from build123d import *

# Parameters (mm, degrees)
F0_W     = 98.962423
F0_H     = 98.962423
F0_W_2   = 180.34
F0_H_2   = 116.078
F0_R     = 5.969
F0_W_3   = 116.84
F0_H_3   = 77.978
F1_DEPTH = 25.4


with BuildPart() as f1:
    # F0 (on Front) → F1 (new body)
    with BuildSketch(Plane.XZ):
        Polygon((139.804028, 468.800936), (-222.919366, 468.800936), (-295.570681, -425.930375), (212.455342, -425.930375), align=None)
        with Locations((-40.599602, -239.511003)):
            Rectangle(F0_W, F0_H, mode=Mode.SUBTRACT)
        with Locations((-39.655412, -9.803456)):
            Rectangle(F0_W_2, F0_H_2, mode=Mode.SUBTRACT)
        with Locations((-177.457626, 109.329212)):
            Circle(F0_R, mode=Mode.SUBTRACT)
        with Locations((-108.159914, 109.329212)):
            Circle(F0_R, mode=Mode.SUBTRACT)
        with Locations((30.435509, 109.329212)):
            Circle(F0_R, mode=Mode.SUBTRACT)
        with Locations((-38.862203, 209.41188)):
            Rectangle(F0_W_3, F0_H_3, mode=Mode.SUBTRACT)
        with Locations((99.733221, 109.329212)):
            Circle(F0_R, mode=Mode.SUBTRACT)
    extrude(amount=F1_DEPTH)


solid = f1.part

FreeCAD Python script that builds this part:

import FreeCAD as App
import Part
import Sketcher
Q = App.Units.Quantity


def add_polygon(sketch, points):
    """Adds a closed chain of lines whose ends are joined by coincident constraints."""
    first, n = sketch.GeometryCount, len(points)
    for a, b in zip(points, points[1:] + points[:1]):
        sketch.addGeometry(Part.LineSegment(App.Vector(*a, 0), App.Vector(*b, 0)), False)
    for i in range(n):
        sketch.addConstraint(Sketcher.Constraint("Coincident", first + i, 2, first + (i + 1) % n, 1))

doc = App.newDocument("Part")
params = doc.addObject("Spreadsheet::Sheet", "Params")
for row, (alias, value) in enumerate([
    ("sketch1_diameter", "0.47 in"),
    ("sketch1_width", "7.1 in"),
    ("sketch1_width2", "4.6 in"),
    ("sketch1_height", "4.57 in"),
    ("sketch1_height2", "3.07 in"),
    ("pad1_length", "1 in"),
], start=1):
    params.set(f"A{row}", alias)
    params.set(f"B{row}", "=" + value)
    params.setAlias(f"B{row}", alias)

body = doc.addObject("PartDesign::Body", "Body")

sketch1 = body.newObject("Sketcher::SketchObject", "Sketch")
sketch1.AttachmentSupport = (doc.getObject("XZ_Plane"), [""])
sketch1.MapMode = "FlatFace"
add_polygon(sketch1, [(139.804028, 468.800936), (-222.919366, 468.800936), (-295.570681, -425.930375), (212.455342, -425.930375)])
add_polygon(sketch1, [(8.881609, -288.992214), (-90.080814, -288.992214), (-90.080814, -190.029791), (8.881609, -190.029791)])
sketch1.addGeometry(Part.Circle(App.Vector(-177.457626, 109.329212, 0), App.Vector(0, 0, 1), 5.969), False)
add_polygon(sketch1, [(50.514588, -67.842456), (-129.825412, -67.842456), (-129.825412, 48.235544), (50.514588, 48.235544)])
sketch1.addGeometry(Part.Circle(App.Vector(-108.159914, 109.329212, 0), App.Vector(0, 0, 1), 5.969), False)
add_polygon(sketch1, [(19.557797, 170.42288), (-97.282203, 170.42288), (-97.282203, 248.40088), (19.557797, 248.40088)])
sketch1.addGeometry(Part.Circle(App.Vector(30.435509, 109.329212, 0), App.Vector(0, 0, 1), 5.969), False)
sketch1.addGeometry(Part.Circle(App.Vector(99.733221, 109.329212, 0), App.Vector(0, 0, 1), 5.969), False)
sketch1.addConstraint(Sketcher.Constraint("Horizontal", 0))
sketch1.addConstraint(Sketcher.Constraint("Horizontal", 2))
sketch1.addConstraint(Sketcher.Constraint("Horizontal", 4))
sketch1.addConstraint(Sketcher.Constraint("Vertical", 5))
sketch1.addConstraint(Sketcher.Constraint("Horizontal", 6))
sketch1.addConstraint(Sketcher.Constraint("Vertical", 7))
sketch1.addConstraint(Sketcher.Constraint("Horizontal", 9))
sketch1.addConstraint(Sketcher.Constraint("Vertical", 10))
sketch1.addConstraint(Sketcher.Constraint("Horizontal", 11))
sketch1.addConstraint(Sketcher.Constraint("Vertical", 12))
sketch1.addConstraint(Sketcher.Constraint("Horizontal", 14))
sketch1.addConstraint(Sketcher.Constraint("Vertical", 15))
sketch1.addConstraint(Sketcher.Constraint("Horizontal", 16))
sketch1.addConstraint(Sketcher.Constraint("Vertical", 17))
sketch1.addConstraint(Sketcher.Constraint("Equal", 8, 13))
sketch1.addConstraint(Sketcher.Constraint("Equal", 13, 18))
sketch1.addConstraint(Sketcher.Constraint("Equal", 18, 19))
sketch1.addConstraint(Sketcher.Constraint("Horizontal", 8, 3, 13, 3))
sketch1.addConstraint(Sketcher.Constraint("Horizontal", 13, 3, 18, 3))
sketch1.addConstraint(Sketcher.Constraint("Horizontal", 18, 3, 19, 3))
sketch1.addConstraint(Sketcher.Constraint("Equal", 6, 5))
sketch1.addConstraint(Sketcher.Constraint("Equal", 1, 3))
sketch1.addConstraint(Sketcher.Constraint("Diameter", 8, Q("0.47 in")))
sketch1.addConstraint(Sketcher.Constraint("DistanceX", 9, 2, 9, 1, Q("7.1 in")))
sketch1.addConstraint(Sketcher.Constraint("DistanceX", 14, 2, 14, 1, Q("4.6 in")))
sketch1.addConstraint(Sketcher.Constraint("DistanceY", 10, 1, 10, 2, Q("4.57 in")))
sketch1.addConstraint(Sketcher.Constraint("DistanceY", 15, 1, 15, 2, Q("3.07 in")))
sketch1.addConstraint(Sketcher.Constraint("DistanceX", 1, 2, 19, 3, Q("395.303902 mm")))
sketch1.addConstraint(Sketcher.Constraint("DistanceX", 13, 3, 4, 2, Q("18.0791 mm")))
sketch1.addConstraint(Sketcher.Constraint("DistanceX", 6, 2, 18, 3, Q("21.553899 mm")))
sketch1.addConstraint(Sketcher.Constraint("DistanceX", 9, 2, 5, 2, Q("39.744598 mm")))
sketch1.addConstraint(Sketcher.Constraint("DistanceX", 0, 2, 0, 1, Q("362.723394 mm")))
sketch1.addConstraint(Sketcher.Constraint("DistanceX", 2, 1, 2, 2, Q("508.026023 mm")))
sketch1.addConstraint(Sketcher.Constraint("DistanceX", 4, 2, 4, 1, Q("98.962423 mm")))
sketch1.addConstraint(Sketcher.Constraint("DistanceY", -1, 1, 8, 3, Q("109.329212 mm")))
sketch1.addConstraint(Sketcher.Constraint("DistanceX", -1, 1, 18, 3, Q("30.435509 mm")))
sketch1.addConstraint(Sketcher.Constraint("DistanceX", -1, 1, 19, 3, Q("99.733221 mm")))
sketch1.addConstraint(Sketcher.Constraint("DistanceY", 5, 2, -1, 1, Q("190.029791 mm")))
sketch1.addConstraint(Sketcher.Constraint("DistanceY", -1, 1, 14, 2, Q("170.42288 mm")))
sketch1.addConstraint(Sketcher.Constraint("DistanceX", 0, 2, 8, 3, Q("45.46174 mm")))
sketch1.addConstraint(Sketcher.Constraint("DistanceY", 1, 2, 0, 2, Q("894.731311 mm")))
sketch1.addConstraint(Sketcher.Constraint("DistanceY", 1, 2, 4, 2, Q("136.938161 mm")))
sketch1.addConstraint(Sketcher.Constraint("DistanceY", 9, 2, 13, 3, Q("177.171668 mm")))
sketch1.addConstraint(Sketcher.Constraint("DistanceX", 13, 3, 14, 2, Q("10.877711 mm")))
sketch1.setExpression("Constraints[38]", "Params.sketch1_diameter")
sketch1.setExpression("Constraints[39]", "Params.sketch1_width")
sketch1.setExpression("Constraints[40]", "Params.sketch1_width2")
sketch1.setExpression("Constraints[41]", "Params.sketch1_height")
sketch1.setExpression("Constraints[42]", "Params.sketch1_height2")
pad1 = body.newObject("PartDesign::Pad", "Pad")
pad1.Profile = sketch1
pad1.setExpression("Length", "Params.pad1_length")

doc.recompute()
